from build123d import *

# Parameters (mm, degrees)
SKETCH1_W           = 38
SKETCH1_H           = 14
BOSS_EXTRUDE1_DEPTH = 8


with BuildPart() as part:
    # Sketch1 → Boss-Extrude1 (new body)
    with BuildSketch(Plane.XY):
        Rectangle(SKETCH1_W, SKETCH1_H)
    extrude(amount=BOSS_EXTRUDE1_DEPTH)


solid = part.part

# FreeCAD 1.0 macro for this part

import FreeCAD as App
import Part
import Sketcher

V = App.Vector
Q = App.Units.Quantity

doc = App.newDocument("Part")
body = doc.addObject("PartDesign::Body", "Body")

# Sketch on XY plane
sketch1 = body.newObject("Sketcher::SketchObject", "Sketch")
sketch1.AttachmentSupport = (doc.getObject("XY_Plane"), [""])
sketch1.MapMode = "FlatFace"
sketch1.addGeometry([
    Part.LineSegment(V(-19, 7, 0), V(-19, -7, 0)),
    Part.LineSegment(V(-19, -7, 0), V(19, -7, 0)),
    Part.LineSegment(V(19, -7, 0), V(19, 7, 0)),
    Part.LineSegment(V(19, 7, 0), V(-19, 7, 0)),
], False)
sketch1.addConstraint([
    Sketcher.Constraint("Coincident", 0, 2, 1, 1),
    Sketcher.Constraint("Coincident", 1, 2, 2, 1),
    Sketcher.Constraint("Coincident", 2, 2, 3, 1),
    Sketcher.Constraint("Coincident", 3, 2, 0, 1),
    Sketcher.Constraint("Vertical", 0),
    Sketcher.Constraint("Horizontal", 1),
    Sketcher.Constraint("Vertical", 2),
    Sketcher.Constraint("Horizontal", 3),
    Sketcher.Constraint("Symmetric", 0, 2, 2, 2, -1, 1),
    Sketcher.Constraint("DistanceX", 1, 1, 1, 2, Q("38 mm")),
    Sketcher.Constraint("DistanceY", 0, 2, 0, 1, Q("14 mm")),
])
pad1 = body.newObject("PartDesign::Pad", "Pad")
pad1.Profile = sketch1
pad1.Length = 8

doc.recompute()
